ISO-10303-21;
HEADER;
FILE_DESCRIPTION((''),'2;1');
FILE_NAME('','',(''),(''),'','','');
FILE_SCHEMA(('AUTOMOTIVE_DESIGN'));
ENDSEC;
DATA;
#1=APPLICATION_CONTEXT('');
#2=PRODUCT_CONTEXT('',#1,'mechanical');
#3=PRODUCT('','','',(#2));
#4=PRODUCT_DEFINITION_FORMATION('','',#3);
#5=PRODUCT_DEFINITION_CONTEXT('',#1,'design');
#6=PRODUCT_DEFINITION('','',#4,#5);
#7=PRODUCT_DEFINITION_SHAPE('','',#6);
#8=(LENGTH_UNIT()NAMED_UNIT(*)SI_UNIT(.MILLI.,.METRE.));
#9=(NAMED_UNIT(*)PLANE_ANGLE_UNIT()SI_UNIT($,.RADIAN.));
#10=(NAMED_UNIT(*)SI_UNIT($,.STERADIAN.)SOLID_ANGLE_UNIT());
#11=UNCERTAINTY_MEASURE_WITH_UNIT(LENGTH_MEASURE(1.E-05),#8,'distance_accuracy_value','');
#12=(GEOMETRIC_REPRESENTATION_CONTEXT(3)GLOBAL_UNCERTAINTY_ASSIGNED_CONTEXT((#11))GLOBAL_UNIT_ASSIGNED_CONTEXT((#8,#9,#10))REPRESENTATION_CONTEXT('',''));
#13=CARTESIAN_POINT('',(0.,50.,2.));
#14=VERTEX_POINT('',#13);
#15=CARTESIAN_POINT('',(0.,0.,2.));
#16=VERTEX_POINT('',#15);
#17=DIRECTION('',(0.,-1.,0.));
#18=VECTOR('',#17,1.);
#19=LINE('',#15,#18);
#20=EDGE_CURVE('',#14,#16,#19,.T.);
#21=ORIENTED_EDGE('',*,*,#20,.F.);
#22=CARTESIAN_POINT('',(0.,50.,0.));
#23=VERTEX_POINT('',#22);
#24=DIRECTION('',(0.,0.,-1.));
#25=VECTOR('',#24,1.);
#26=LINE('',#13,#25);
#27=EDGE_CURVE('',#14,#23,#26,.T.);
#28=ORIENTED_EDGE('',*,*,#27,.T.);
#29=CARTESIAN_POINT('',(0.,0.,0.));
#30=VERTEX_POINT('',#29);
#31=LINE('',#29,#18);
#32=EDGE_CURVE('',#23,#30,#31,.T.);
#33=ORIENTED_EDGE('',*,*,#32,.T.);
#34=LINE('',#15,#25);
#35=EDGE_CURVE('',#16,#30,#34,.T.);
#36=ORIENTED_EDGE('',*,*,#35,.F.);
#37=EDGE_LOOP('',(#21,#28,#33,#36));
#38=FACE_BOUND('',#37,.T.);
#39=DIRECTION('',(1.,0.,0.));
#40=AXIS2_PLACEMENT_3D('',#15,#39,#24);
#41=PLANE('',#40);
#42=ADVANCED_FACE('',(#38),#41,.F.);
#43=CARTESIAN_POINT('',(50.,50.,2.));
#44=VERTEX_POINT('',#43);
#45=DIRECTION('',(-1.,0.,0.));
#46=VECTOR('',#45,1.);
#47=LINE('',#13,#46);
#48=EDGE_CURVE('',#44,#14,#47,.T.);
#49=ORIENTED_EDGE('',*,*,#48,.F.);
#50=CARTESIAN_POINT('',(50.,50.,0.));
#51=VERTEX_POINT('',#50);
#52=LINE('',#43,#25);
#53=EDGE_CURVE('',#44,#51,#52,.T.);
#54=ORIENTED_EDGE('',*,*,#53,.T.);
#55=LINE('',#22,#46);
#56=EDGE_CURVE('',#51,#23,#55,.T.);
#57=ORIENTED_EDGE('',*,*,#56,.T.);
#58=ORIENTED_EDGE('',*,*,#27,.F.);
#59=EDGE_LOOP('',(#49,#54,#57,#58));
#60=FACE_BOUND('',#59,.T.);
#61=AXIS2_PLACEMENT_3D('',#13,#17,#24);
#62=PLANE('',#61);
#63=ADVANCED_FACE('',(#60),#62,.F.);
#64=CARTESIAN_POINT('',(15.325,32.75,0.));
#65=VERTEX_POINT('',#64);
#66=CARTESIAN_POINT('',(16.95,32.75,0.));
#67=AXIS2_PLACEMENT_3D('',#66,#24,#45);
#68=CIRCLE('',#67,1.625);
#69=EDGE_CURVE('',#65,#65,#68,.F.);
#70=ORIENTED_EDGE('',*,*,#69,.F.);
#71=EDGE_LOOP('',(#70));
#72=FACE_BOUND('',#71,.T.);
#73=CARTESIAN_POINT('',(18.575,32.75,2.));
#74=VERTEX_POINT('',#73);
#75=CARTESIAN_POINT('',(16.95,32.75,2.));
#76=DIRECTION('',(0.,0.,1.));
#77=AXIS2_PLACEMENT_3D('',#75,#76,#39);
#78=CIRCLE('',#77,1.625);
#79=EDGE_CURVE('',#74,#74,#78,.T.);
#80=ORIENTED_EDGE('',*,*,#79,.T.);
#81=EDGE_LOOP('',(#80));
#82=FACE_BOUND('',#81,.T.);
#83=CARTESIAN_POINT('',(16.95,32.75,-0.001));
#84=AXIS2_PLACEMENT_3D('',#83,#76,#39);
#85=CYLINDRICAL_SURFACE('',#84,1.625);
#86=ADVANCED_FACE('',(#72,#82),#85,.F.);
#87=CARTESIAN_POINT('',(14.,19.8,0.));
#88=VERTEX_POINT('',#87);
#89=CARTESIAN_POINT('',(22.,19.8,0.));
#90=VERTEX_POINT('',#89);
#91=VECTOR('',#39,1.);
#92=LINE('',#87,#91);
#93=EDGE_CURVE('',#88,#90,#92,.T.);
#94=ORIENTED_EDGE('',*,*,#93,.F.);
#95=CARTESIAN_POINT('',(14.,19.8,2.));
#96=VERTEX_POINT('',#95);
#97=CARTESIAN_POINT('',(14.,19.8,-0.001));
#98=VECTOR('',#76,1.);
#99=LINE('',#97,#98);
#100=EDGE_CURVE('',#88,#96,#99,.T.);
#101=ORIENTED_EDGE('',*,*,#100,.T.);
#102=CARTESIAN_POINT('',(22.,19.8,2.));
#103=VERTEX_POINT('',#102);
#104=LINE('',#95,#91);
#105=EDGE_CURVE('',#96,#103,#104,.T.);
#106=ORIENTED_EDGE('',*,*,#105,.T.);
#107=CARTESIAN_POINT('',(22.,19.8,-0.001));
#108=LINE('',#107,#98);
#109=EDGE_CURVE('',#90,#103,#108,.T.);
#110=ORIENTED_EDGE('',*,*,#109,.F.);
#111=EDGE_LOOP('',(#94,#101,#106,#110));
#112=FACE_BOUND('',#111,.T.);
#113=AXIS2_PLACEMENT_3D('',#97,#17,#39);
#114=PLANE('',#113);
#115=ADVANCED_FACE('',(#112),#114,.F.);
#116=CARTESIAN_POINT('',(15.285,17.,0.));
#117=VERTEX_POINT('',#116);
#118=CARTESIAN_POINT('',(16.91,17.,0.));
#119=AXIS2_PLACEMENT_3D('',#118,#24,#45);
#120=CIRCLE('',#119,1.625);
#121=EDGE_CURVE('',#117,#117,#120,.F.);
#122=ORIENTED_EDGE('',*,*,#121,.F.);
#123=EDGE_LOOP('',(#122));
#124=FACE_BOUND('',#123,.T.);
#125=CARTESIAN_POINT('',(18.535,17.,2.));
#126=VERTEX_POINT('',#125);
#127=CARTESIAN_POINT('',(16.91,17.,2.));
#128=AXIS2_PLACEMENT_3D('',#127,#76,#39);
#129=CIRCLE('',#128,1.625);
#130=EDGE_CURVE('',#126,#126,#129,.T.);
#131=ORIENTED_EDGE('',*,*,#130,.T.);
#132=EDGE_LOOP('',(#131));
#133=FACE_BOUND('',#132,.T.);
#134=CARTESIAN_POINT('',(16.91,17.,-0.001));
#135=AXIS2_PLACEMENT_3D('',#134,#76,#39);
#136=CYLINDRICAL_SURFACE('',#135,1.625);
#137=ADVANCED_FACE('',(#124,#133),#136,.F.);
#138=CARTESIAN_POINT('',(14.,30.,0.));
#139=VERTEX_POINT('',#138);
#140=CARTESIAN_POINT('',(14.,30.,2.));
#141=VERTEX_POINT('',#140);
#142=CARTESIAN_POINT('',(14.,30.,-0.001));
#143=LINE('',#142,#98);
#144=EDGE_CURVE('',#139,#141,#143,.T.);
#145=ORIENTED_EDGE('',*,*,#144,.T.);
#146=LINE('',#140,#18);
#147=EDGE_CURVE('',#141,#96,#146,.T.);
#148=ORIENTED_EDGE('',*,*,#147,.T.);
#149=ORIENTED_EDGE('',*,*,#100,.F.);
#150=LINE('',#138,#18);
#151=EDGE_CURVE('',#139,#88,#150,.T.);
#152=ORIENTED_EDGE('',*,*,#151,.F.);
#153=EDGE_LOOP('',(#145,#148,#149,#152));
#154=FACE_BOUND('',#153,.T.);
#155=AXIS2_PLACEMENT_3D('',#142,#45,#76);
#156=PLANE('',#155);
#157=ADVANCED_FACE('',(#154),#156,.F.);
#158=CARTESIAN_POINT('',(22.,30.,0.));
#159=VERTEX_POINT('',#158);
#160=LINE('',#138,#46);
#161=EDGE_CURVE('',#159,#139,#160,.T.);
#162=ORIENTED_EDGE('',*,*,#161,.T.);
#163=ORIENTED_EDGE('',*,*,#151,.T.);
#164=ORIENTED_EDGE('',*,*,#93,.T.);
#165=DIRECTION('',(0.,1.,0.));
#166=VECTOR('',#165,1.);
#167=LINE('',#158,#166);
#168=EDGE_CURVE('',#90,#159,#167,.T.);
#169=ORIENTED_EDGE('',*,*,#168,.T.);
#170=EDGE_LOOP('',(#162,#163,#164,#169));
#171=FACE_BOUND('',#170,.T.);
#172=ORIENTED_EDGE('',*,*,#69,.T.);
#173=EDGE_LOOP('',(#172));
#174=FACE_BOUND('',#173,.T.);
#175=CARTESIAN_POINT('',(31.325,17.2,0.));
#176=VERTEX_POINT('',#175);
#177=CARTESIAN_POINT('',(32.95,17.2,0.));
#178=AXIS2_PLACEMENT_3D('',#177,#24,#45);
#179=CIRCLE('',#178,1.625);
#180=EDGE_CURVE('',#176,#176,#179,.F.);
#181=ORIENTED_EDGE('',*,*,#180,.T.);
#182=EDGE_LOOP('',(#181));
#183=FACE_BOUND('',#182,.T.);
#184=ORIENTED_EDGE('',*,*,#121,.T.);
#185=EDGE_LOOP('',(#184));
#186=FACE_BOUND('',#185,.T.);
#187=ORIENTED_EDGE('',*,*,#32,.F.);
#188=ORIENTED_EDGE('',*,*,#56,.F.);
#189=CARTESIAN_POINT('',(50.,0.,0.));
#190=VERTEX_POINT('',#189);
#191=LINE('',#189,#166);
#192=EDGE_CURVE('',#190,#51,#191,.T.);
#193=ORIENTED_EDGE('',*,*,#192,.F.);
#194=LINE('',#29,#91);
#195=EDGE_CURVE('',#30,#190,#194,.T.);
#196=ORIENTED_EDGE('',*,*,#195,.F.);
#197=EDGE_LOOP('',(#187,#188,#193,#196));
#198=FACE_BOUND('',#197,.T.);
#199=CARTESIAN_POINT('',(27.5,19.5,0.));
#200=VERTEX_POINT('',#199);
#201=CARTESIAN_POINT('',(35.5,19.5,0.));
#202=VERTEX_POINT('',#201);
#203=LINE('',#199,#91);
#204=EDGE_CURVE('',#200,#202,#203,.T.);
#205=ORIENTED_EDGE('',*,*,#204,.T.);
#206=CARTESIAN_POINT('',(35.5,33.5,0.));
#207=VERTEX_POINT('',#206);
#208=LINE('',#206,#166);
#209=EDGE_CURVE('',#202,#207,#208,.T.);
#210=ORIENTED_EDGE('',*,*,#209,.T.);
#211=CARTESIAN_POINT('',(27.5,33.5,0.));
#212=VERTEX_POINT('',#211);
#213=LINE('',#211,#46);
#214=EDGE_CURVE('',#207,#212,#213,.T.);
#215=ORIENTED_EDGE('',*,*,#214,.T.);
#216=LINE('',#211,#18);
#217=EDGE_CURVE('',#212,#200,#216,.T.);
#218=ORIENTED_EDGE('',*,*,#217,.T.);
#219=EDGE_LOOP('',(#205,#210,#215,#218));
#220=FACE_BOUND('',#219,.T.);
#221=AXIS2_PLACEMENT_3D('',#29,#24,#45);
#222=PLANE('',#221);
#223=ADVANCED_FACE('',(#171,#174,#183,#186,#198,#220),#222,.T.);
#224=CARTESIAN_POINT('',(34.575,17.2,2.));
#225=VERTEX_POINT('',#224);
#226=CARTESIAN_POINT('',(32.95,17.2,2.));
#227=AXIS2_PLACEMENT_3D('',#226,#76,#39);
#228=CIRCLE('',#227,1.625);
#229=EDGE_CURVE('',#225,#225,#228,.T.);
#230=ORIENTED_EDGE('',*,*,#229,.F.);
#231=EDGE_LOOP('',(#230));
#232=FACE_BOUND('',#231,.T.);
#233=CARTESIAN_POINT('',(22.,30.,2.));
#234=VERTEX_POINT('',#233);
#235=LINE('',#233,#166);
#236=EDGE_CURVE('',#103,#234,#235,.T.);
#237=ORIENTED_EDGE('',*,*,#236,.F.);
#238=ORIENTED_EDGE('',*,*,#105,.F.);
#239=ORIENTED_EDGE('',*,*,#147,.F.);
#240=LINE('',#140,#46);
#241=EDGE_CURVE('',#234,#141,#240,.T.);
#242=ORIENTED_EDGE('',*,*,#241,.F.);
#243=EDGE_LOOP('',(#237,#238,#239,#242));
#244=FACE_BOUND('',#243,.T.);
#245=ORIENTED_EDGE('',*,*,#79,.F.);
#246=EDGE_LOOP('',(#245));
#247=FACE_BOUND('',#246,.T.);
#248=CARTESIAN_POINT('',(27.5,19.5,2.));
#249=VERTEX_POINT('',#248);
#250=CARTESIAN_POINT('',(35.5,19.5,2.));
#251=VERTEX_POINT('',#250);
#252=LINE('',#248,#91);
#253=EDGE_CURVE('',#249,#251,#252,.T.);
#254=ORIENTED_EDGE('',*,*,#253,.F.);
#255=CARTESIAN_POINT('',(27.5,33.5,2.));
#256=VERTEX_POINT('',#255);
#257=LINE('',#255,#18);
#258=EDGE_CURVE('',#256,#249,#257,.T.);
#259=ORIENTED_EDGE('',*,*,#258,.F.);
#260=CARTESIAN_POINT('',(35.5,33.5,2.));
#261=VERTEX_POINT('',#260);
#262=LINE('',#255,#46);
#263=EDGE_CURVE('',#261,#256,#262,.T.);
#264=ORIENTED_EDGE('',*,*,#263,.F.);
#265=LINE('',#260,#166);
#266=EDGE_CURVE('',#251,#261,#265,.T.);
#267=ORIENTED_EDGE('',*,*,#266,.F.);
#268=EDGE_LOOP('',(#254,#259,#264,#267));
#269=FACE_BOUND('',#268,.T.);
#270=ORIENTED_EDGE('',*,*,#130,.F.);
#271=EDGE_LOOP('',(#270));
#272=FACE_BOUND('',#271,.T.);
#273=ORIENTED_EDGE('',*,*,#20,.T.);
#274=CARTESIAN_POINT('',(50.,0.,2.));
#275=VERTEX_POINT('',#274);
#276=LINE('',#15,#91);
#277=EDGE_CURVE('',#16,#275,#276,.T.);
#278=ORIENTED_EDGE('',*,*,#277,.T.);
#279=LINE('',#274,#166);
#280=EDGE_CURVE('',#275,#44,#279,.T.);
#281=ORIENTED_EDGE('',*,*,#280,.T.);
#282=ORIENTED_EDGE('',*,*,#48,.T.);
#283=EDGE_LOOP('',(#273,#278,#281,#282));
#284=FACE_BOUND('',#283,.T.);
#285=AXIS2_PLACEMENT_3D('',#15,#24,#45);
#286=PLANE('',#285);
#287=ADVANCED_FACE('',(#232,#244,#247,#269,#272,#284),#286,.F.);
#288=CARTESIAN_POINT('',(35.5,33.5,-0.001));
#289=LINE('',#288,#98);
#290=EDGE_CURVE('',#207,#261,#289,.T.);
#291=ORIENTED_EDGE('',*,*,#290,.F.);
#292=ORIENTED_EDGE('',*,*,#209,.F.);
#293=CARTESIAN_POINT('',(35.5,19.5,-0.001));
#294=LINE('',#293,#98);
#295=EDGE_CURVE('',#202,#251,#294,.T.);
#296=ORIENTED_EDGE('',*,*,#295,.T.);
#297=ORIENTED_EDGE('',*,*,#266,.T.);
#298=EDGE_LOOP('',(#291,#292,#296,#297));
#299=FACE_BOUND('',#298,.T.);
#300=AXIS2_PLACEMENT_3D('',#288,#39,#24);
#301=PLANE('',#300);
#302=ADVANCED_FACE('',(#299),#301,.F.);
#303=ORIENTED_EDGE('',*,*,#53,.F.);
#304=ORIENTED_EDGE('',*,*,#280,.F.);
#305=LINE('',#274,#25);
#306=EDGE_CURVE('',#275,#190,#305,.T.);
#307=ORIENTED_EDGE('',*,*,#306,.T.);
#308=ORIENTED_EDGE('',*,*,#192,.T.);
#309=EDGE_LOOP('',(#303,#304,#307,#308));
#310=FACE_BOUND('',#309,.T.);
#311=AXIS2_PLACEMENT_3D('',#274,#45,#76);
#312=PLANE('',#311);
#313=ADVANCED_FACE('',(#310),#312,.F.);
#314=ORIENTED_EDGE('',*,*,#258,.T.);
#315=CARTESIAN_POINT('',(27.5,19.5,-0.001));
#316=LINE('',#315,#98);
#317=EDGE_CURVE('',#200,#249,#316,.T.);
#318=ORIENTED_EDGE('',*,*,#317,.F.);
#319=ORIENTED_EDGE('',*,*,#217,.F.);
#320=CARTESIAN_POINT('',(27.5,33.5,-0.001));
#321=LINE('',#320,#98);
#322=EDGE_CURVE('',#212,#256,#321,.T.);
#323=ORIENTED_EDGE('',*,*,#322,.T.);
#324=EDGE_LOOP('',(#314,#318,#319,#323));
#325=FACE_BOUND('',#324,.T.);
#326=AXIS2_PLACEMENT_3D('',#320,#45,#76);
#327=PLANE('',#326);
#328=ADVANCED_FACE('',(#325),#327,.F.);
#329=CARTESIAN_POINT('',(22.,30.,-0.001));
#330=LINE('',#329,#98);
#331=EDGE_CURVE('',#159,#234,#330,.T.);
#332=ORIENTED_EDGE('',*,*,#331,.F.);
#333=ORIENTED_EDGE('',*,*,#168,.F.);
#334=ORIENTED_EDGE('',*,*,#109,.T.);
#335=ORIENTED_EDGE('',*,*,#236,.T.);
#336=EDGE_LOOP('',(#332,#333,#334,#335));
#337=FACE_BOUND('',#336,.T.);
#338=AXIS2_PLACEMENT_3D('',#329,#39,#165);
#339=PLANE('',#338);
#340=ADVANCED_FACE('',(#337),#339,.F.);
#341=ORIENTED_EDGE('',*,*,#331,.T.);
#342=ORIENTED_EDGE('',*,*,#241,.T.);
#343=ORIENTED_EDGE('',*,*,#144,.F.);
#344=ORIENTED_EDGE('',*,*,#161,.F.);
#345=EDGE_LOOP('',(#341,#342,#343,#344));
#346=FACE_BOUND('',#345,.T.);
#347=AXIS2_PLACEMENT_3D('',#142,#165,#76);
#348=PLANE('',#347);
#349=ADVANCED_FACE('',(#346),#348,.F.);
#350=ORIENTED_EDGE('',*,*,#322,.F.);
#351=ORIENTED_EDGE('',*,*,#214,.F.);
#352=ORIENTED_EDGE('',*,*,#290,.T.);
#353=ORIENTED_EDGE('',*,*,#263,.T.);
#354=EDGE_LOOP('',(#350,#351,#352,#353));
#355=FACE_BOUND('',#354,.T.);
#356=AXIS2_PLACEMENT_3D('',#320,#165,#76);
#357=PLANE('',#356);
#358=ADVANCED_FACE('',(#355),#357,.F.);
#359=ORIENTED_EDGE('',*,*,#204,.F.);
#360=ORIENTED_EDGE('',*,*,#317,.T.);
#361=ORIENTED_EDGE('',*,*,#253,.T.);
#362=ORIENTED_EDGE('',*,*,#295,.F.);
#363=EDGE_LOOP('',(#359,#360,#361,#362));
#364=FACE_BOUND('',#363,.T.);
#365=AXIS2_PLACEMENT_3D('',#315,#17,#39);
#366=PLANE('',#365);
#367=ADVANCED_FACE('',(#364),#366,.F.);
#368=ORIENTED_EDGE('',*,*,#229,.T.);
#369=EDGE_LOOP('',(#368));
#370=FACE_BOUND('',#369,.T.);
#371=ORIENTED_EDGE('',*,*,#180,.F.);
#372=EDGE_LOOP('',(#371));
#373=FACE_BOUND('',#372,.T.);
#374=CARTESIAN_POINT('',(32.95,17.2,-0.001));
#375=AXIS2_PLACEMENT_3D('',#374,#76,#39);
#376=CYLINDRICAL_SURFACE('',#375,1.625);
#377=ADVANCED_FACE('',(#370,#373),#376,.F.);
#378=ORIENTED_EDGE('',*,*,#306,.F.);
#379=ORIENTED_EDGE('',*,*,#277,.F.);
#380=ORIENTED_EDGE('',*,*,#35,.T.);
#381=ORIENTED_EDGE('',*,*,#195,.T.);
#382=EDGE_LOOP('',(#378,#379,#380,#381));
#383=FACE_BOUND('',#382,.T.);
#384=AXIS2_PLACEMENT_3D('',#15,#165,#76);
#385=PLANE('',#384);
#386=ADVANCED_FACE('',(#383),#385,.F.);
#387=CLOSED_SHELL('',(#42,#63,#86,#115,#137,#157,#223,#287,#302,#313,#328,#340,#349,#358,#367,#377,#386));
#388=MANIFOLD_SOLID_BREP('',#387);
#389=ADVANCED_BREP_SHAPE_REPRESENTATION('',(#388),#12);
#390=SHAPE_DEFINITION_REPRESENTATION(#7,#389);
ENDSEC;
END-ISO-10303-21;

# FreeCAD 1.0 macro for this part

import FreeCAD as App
import Part
import Sketcher

doc = App.newDocument("Part")
body = doc.addObject("PartDesign::Body", "Body")

sketch1 = body.newObject("Sketcher::SketchObject", "Sketch")
sketch1.AttachmentSupport = (doc.getObject("XY_Plane"), [""])
sketch1.MapMode = "FlatFace"
sketch1.addGeometry([
    Part.LineSegment(App.Vector(0, 50, 0), App.Vector(0, 0, 0)),
    Part.LineSegment(App.Vector(0, 0, 0), App.Vector(50, 0, 0)),
    Part.LineSegment(App.Vector(50, 0, 0), App.Vector(50, 50, 0)),
    Part.LineSegment(App.Vector(50, 50, 0), App.Vector(0, 50, 0)),
], False)
sketch1.addConstraint([
    Sketcher.Constraint("Coincident", 0, 2, 1, 1),
    Sketcher.Constraint("Coincident", 1, 2, 2, 1),
    Sketcher.Constraint("Coincident", 2, 2, 3, 1),
    Sketcher.Constraint("Coincident", 3, 2, 0, 1),
    Sketcher.Constraint("Vertical", 0),
    Sketcher.Constraint("Horizontal", 1),
    Sketcher.Constraint("Vertical", 2),
    Sketcher.Constraint("Horizontal", 3),
    Sketcher.Constraint("Coincident", 0, 2, -1, 1),
    Sketcher.Constraint("Equal", 3, 0),
    Sketcher.Constraint("DistanceX", 1, 1, 1, 2, 50.0),
])
pad1 = body.newObject("PartDesign::Pad", "Pad")
pad1.Profile = sketch1
pad1.Length = 2

sketch2 = body.newObject("Sketcher::SketchObject", "Sketch001")
sketch2.AttachmentSupport = (doc.getObject("XY_Plane"), [""])
sketch2.MapMode = "FlatFace"
sketch2.AttachmentOffset = App.Placement(App.Vector(0, 0, 2), App.Rotation())
sketch2.addGeometry(Part.Circle(App.Vector(16.9, 32.8, 0), App.Vector(0, 0, 1), 1.6), False)
sketch2.addConstraint([
    Sketcher.Constraint("Diameter", 0, 3.25),
    Sketcher.Constraint("DistanceX", -1, 1, 0, 3, 16.95),
    Sketcher.Constraint("DistanceY", -1, 1, 0, 3, 32.75),
])
pocket1 = body.newObject("PartDesign::Pocket", "Pocket")
pocket1.Profile = sketch2
pocket1.Type = "UpToFirst"

sketch3 = body.newObject("Sketcher::SketchObject", "Sketch002")
sketch3.AttachmentSupport = (doc.getObject("XY_Plane"), [""])
sketch3.MapMode = "FlatFace"
sketch3.AttachmentOffset = App.Placement(App.Vector(0, 0, 2), App.Rotation())
sketch3.addGeometry(Part.Circle(App.Vector(16.9, 17, 0), App.Vector(0, 0, 1), 1.6), False)
sketch3.addConstraint([
    Sketcher.Constraint("Diameter", 0, 3.25),
    Sketcher.Constraint("DistanceY", -1, 1, 0, 3, 17.0),
    Sketcher.Constraint("DistanceX", -1, 1, 0, 3, 16.91),
])
pocket2 = body.newObject("PartDesign::Pocket", "Pocket001")
pocket2.Profile = sketch3
pocket2.Type = "UpToFirst"

sketch4 = body.newObject("Sketcher::SketchObject", "Sketch003")
sketch4.AttachmentSupport = (doc.getObject("XY_Plane"), [""])
sketch4.MapMode = "FlatFace"
sketch4.AttachmentOffset = App.Placement(App.Vector(0, 0, 2), App.Rotation())
sketch4.addGeometry(Part.Circle(App.Vector(33, 17.2, 0), App.Vector(0, 0, 1), 1.6), False)
sketch4.addConstraint([
    Sketcher.Constraint("Diameter", 0, 3.25),
    Sketcher.Constraint("DistanceY", -1, 1, 0, 3, 17.2),
    Sketcher.Constraint("DistanceX", -1, 1, 0, 3, 32.95),
])
pocket3 = body.newObject("PartDesign::Pocket", "Pocket002")
pocket3.Profile = sketch4
pocket3.Type = "UpToFirst"

sketch5 = body.newObject("Sketcher::SketchObject", "Sketch004")
sketch5.AttachmentSupport = (doc.getObject("XY_Plane"), [""])
sketch5.MapMode = "FlatFace"
sketch5.AttachmentOffset = App.Placement(App.Vector(0, 0, 2), App.Rotation())
sketch5.addGeometry([
    Part.LineSegment(App.Vector(14, 30, 0), App.Vector(14, 20, 0)),
    Part.LineSegment(App.Vector(14, 20, 0), App.Vector(22, 20, 0)),
    Part.LineSegment(App.Vector(22, 20, 0), App.Vector(22, 30, 0)),
    Part.LineSegment(App.Vector(22, 30, 0), App.Vector(14, 30, 0)),
], False)
sketch5.addConstraint([
    Sketcher.Constraint("Coincident", 0, 2, 1, 1),
    Sketcher.Constraint("Coincident", 1, 2, 2, 1),
    Sketcher.Constraint("Coincident", 2, 2, 3, 1),
    Sketcher.Constraint("Coincident", 3, 2, 0, 1),
    Sketcher.Constraint("Vertical", 0),
    Sketcher.Constraint("Horizontal", 1),
    Sketcher.Constraint("Vertical", 2),
    Sketcher.Constraint("Horizontal", 3),
    Sketcher.Constraint("DistanceX", 1, 1, 1, 2, 8.0),
    Sketcher.Constraint("DistanceY", 0, 2, 0, 1, 10.2),
    Sketcher.Constraint("DistanceX", -1, 1, 0, 2, 14.0),
    Sketcher.Constraint("DistanceY", -1, 1, 2, 2, 30.0),
])
pocket4 = body.newObject("PartDesign::Pocket", "Pocket003")
pocket4.Profile = sketch5
pocket4.Type = "UpToFirst"

sketch6 = body.newObject("Sketcher::SketchObject", "Sketch005")
sketch6.AttachmentSupport = (doc.getObject("XY_Plane"), [""])
sketch6.MapMode = "FlatFace"
sketch6.AttachmentOffset = App.Placement(App.Vector(0, 0, 2), App.Rotation())
sketch6.addGeometry([
    Part.LineSegment(App.Vector(28, 34, 0), App.Vector(28, 20, 0)),
    Part.LineSegment(App.Vector(28, 20, 0), App.Vector(36, 20, 0)),
    Part.LineSegment(App.Vector(36, 20, 0), App.Vector(36, 34, 0)),
    Part.LineSegment(App.Vector(36, 34, 0), App.Vector(28, 34, 0)),
], False)
sketch6.addConstraint([
    Sketcher.Constraint("Coincident", 0, 2, 1, 1),
    Sketcher.Constraint("Coincident", 1, 2, 2, 1),
    Sketcher.Constraint("Coincident", 2, 2, 3, 1),
    Sketcher.Constraint("Coincident", 3, 2, 0, 1),
    Sketcher.Constraint("Vertical", 0),
    Sketcher.Constraint("Horizontal", 1),
    Sketcher.Constraint("Vertical", 2),
    Sketcher.Constraint("Horizontal", 3),
    Sketcher.Constraint("DistanceX", 1, 1, 1, 2, 8.0),
    Sketcher.Constraint("DistanceY", 0, 2, 0, 1, 14.0),
    Sketcher.Constraint("DistanceX", -1, 1, 0, 2, 27.5),
    Sketcher.Constraint("DistanceY", -1, 1, 0, 2, 19.5),
])
pocket5 = body.newObject("PartDesign::Pocket", "Pocket004")
pocket5.Profile = sketch6
pocket5.Type = "UpToFirst"

doc.recompute()
